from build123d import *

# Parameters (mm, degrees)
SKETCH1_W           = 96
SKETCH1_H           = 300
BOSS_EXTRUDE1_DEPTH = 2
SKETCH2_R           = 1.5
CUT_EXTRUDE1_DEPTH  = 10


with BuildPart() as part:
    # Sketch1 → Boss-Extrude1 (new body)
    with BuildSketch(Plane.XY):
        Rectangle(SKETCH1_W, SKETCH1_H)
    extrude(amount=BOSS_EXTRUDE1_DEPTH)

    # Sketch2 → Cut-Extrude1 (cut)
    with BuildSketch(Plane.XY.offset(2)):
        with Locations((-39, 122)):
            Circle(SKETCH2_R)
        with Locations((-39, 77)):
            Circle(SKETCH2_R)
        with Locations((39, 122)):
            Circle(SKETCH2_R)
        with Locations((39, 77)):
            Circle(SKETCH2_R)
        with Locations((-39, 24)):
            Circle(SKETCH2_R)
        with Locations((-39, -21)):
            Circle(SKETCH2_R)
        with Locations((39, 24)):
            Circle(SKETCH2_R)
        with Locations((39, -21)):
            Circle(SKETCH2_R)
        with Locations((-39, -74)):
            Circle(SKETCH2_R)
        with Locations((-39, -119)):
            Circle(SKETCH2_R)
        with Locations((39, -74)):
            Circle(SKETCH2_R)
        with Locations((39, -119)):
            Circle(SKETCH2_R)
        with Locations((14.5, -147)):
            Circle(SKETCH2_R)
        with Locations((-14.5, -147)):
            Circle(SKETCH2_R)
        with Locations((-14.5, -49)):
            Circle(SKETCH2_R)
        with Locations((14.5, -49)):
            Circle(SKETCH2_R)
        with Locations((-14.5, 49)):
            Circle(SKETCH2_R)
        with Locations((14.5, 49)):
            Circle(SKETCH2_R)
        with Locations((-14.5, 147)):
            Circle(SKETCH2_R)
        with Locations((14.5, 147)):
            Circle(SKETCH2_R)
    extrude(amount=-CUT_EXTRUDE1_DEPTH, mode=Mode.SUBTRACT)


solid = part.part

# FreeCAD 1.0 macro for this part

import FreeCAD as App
import Part
import Sketcher
Q = App.Units.Quantity

doc = App.newDocument("Part")
body = doc.addObject("PartDesign::Body", "Body")

sketch1 = body.newObject("Sketcher::SketchObject", "Sketch")
sketch1.AttachmentSupport = (doc.getObject("XY_Plane"), [""])
sketch1.MapMode = "FlatFace"
sketch1.addGeometry([
    Part.LineSegment(App.Vector(-48, 150, 0), App.Vector(-48, -150, 0)),
    Part.LineSegment(App.Vector(-48, -150, 0), App.Vector(48, -150, 0)),
    Part.LineSegment(App.Vector(48, -150, 0), App.Vector(48, 150, 0)),
    Part.LineSegment(App.Vector(48, 150, 0), App.Vector(-48, 150, 0)),
], False)
sketch1.addConstraint([
    Sketcher.Constraint("Coincident", 0, 2, 1, 1),
    Sketcher.Constraint("Coincident", 1, 2, 2, 1),
    Sketcher.Constraint("Coincident", 2, 2, 3, 1),
    Sketcher.Constraint("Coincident", 3, 2, 0, 1),
    Sketcher.Constraint("Vertical", 0),
    Sketcher.Constraint("Horizontal", 1),
    Sketcher.Constraint("Vertical", 2),
    Sketcher.Constraint("Horizontal", 3),
    Sketcher.Constraint("Symmetric", 0, 2, 2, 2, -1, 1),
    Sketcher.Constraint("DistanceX", 1, 1, 1, 2, Q("96 mm")),
    Sketcher.Constraint("DistanceY", 0, 2, 0, 1, Q("300 mm")),
])
pad1 = body.newObject("PartDesign::Pad", "Pad")
pad1.Profile = sketch1
pad1.Length = 2

sketch2 = body.newObject("Sketcher::SketchObject", "Sketch001")
sketch2.AttachmentSupport = (doc.getObject("XY_Plane"), [""])
sketch2.MapMode = "FlatFace"
sketch2.AttachmentOffset = App.Placement(App.Vector(0, 0, 2), App.Rotation())
sketch2.addGeometry([
    Part.Circle(App.Vector(-39, 122, 0), App.Vector(0, 0, 1), 1.5),
    Part.Circle(App.Vector(-39, 77, 0), App.Vector(0, 0, 1), 1.5),
    Part.Circle(App.Vector(39, 122, 0), App.Vector(0, 0, 1), 1.5),
    Part.Circle(App.Vector(39, 77, 0), App.Vector(0, 0, 1), 1.5),
    Part.Circle(App.Vector(-39, 24, 0), App.Vector(0, 0, 1), 1.5),
    Part.Circle(App.Vector(-39, -21, 0), App.Vector(0, 0, 1), 1.5),
    Part.Circle(App.Vector(39, 24, 0), App.Vector(0, 0, 1), 1.5),
    Part.Circle(App.Vector(39, -21, 0), App.Vector(0, 0, 1), 1.5),
    Part.Circle(App.Vector(-39, -74, 0), App.Vector(0, 0, 1), 1.5),
    Part.Circle(App.Vector(-39, -119, 0), App.Vector(0, 0, 1), 1.5),
    Part.Circle(App.Vector(39, -74, 0), App.Vector(0, 0, 1), 1.5),
    Part.Circle(App.Vector(39, -119, 0), App.Vector(0, 0, 1), 1.5),
    Part.Circle(App.Vector(14.5, -147, 0), App.Vector(0, 0, 1), 1.5),
    Part.Circle(App.Vector(-14.5, -147, 0), App.Vector(0, 0, 1), 1.5),
    Part.Circle(App.Vector(-14.5, -49, 0), App.Vector(0, 0, 1), 1.5),
    Part.Circle(App.Vector(14.5, -49, 0), App.Vector(0, 0, 1), 1.5),
    Part.Circle(App.Vector(-14.5, 49, 0), App.Vector(0, 0, 1), 1.5),
    Part.Circle(App.Vector(14.5, 49, 0), App.Vector(0, 0, 1), 1.5),
    Part.Circle(App.Vector(-14.5, 147, 0), App.Vector(0, 0, 1), 1.5),
    Part.Circle(App.Vector(14.5, 147, 0), App.Vector(0, 0, 1), 1.5),
], False)
sketch2.addConstraint([
    Sketcher.Constraint("Equal", 0, 1),
    Sketcher.Constraint("Equal", 1, 2),
    Sketcher.Constraint("Equal", 2, 3),
    Sketcher.Constraint("Equal", 3, 4),
    Sketcher.Constraint("Equal", 4, 5),
    Sketcher.Constraint("Equal", 5, 6),
    Sketcher.Constraint("Equal", 6, 7),
    Sketcher.Constraint("Equal", 7, 8),
    Sketcher.Constraint("Equal", 8, 9),
    Sketcher.Constraint("Equal", 9, 10),
    Sketcher.Constraint("Equal", 10, 11),
    Sketcher.Constraint("Equal", 11, 12),
    Sketcher.Constraint("Equal", 12, 13),
    Sketcher.Constraint("Equal", 13, 14),
    Sketcher.Constraint("Equal", 14, 15),
    Sketcher.Constraint("Equal", 15, 16),
    Sketcher.Constraint("Equal", 16, 17),
    Sketcher.Constraint("Equal", 17, 18),
    Sketcher.Constraint("Equal", 18, 19),
    Sketcher.Constraint("Symmetric", 15, 3, 16, 3, -1, 1),
    Sketcher.Constraint("Symmetric", 14, 3, 17, 3, -1, 1),
    Sketcher.Constraint("Symmetric", 12, 3, 18, 3, -1, 1),
    Sketcher.Constraint("Symmetric", 13, 3, 19, 3, -1, 1),
    Sketcher.Constraint("Symmetric", 0, 3, 2, 3, -2),
    Sketcher.Constraint("Symmetric", 1, 3, 3, 3, -2),
    Sketcher.Constraint("Symmetric", 4, 3, 6, 3, -2),
    Sketcher.Constraint("Symmetric", 5, 3, 7, 3, -2),
    Sketcher.Constraint("Symmetric", 8, 3, 10, 3, -2),
    Sketcher.Constraint("Symmetric", 9, 3, 11, 3, -2),
    Sketcher.Constraint("Symmetric", 12, 3, 13, 3, -2),
    Sketcher.Constraint("Symmetric", 14, 3, 15, 3, -2),
    Sketcher.Constraint("Vertical", 0, 3, 1, 3),
    Sketcher.Constraint("Vertical", 1, 3, 4, 3),
    Sketcher.Constraint("Vertical", 4, 3, 5, 3),
    Sketcher.Constraint("Vertical", 5, 3, 8, 3),
    Sketcher.Constraint("Vertical", 8, 3, 9, 3),
    Sketcher.Constraint("Vertical", 13, 3, 14, 3),
    Sketcher.Constraint("Diameter", 0, Q("3 mm")),
    Sketcher.Constraint("DistanceX", 0, 3, -1, 1, Q("39 mm")),
    Sketcher.Constraint("DistanceY", -1, 1, 0, 3, Q("122 mm")),
    Sketcher.Constraint("DistanceY", -1, 1, 1, 3, Q("77 mm")),
    Sketcher.Constraint("DistanceY", -1, 1, 4, 3, Q("24 mm")),
    Sketcher.Constraint("DistanceY", 5, 3, -1, 1, Q("21 mm")),
    Sketcher.Constraint("DistanceY", 8, 3, -1, 1, Q("74 mm")),
    Sketcher.Constraint("DistanceY", 9, 3, -1, 1, Q("119 mm")),
    Sketcher.Constraint("DistanceY", 12, 3, -1, 1, Q("147 mm")),
    Sketcher.Constraint("DistanceY", 14, 3, -1, 1, Q("49 mm")),
    Sketcher.Constraint("DistanceX", 13, 3, 12, 3, Q("29 mm")),
])
pocket1 = body.newObject("PartDesign::Pocket", "Pocket")
pocket1.Profile = sketch2
pocket1.Length = 10

doc.recompute()
